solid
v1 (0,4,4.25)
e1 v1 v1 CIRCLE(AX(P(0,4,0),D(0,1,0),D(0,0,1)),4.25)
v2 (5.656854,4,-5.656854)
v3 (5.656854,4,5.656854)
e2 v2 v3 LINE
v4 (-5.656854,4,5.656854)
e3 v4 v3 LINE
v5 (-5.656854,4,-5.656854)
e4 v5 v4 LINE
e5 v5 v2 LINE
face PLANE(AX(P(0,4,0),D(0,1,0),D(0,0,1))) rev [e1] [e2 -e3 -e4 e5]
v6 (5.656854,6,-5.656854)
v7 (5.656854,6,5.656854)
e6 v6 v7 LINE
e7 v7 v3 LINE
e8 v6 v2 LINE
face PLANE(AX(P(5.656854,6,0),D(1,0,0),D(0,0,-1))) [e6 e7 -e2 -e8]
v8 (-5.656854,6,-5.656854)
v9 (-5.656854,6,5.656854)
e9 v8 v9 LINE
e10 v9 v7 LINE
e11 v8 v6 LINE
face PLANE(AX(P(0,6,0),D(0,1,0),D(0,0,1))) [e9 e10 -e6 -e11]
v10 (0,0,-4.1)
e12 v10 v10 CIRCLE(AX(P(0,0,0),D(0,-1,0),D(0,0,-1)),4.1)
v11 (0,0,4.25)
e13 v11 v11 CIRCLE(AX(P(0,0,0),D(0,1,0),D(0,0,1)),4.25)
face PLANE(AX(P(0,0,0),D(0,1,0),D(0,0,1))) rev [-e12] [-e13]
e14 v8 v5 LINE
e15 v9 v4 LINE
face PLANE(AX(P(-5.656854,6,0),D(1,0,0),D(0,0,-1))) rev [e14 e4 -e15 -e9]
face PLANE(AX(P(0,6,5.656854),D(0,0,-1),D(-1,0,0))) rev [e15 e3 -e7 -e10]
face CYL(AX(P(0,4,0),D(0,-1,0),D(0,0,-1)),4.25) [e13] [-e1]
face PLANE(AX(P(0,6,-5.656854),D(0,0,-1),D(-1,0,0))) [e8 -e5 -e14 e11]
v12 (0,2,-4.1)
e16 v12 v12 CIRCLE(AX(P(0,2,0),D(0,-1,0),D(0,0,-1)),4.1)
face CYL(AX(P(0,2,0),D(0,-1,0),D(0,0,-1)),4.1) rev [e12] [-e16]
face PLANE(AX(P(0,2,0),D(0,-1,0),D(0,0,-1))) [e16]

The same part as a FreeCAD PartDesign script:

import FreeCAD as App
import Part
import Sketcher

V = App.Vector
Q = App.Units.Quantity


def add_polygon(sketch, points):
    """Adds a closed chain of lines whose ends are joined by coincident constraints."""
    first, n = sketch.GeometryCount, len(points)
    for a, b in zip(points, points[1:] + points[:1]):
        sketch.addGeometry(Part.LineSegment(App.Vector(*a, 0), App.Vector(*b, 0)), False)
    for i in range(n):
        sketch.addConstraint(Sketcher.Constraint("Coincident", first + i, 2, first + (i + 1) % n, 1))

doc = App.newDocument("Part")
body = doc.addObject("PartDesign::Body", "Body")

sketch1 = doc.addObject("Sketcher::SketchObject", "Sketch")
body.addObject(sketch1)
sketch1.AttachmentSupport = (doc.XZ_Plane, [""])
sketch1.MapMode = "FlatFace"
sketch1.addGeometry(Part.Circle(V(0, 0, 0), V(0, 0, 1), 4.25), False)
sketch1.addConstraint([
    Sketcher.Constraint("Coincident", 0, 3, -1, 1),
    Sketcher.Constraint("Diameter", 0, Q("8.5 mm")),
])
pad1 = doc.addObject("PartDesign::Pad", "Pad")
body.addObject(pad1)
pad1.Profile = sketch1
pad1.Length = 4
pad1.Reversed = True

sketch2 = doc.addObject("Sketcher::SketchObject", "Sketch001")
body.addObject(sketch2)
sketch2.AttachmentSupport = (doc.XZ_Plane, [""])
sketch2.MapMode = "FlatFace"
sketch2.AttachmentOffset = App.Placement(V(0, 0, -4), App.Rotation())
add_polygon(sketch2, [(-5.656854, -5.656854), (-5.656854, 5.656854), (5.656854, 5.656854), (5.656854, -5.656854)])
sketch2.addConstraint([
    Sketcher.Constraint("Vertical", 0),
    Sketcher.Constraint("Horizontal", 1),
    Sketcher.Constraint("Vertical", 2),
    Sketcher.Constraint("Horizontal", 3),
    Sketcher.Constraint("Symmetric", 0, 2, 2, 2, -1, 1),
    Sketcher.Constraint("Equal", 3, 0),
    Sketcher.Constraint("DistanceX", 1, 1, 1, 2, Q("11.313708 mm")),
])
pad2 = doc.addObject("PartDesign::Pad", "Pad001")
body.addObject(pad2)
pad2.Profile = sketch2
pad2.Length = 2
pad2.Reversed = True

sketch3 = doc.addObject("Sketcher::SketchObject", "Sketch002")
body.addObject(sketch3)
sketch3.AttachmentSupport = (doc.XZ_Plane, [""])
sketch3.MapMode = "FlatFace"
sketch3.addGeometry(Part.Circle(V(0, 0, 0), V(0, 0, 1), 4.1), False)
sketch3.addConstraint([
    Sketcher.Constraint("Coincident", 0, 3, -1, 1),
    Sketcher.Constraint("Diameter", 0, Q("8.2 mm")),
])
pocket1 = doc.addObject("PartDesign::Pocket", "Pocket")
body.addObject(pocket1)
pocket1.Profile = sketch3
pocket1.Length = 2

doc.recompute()
